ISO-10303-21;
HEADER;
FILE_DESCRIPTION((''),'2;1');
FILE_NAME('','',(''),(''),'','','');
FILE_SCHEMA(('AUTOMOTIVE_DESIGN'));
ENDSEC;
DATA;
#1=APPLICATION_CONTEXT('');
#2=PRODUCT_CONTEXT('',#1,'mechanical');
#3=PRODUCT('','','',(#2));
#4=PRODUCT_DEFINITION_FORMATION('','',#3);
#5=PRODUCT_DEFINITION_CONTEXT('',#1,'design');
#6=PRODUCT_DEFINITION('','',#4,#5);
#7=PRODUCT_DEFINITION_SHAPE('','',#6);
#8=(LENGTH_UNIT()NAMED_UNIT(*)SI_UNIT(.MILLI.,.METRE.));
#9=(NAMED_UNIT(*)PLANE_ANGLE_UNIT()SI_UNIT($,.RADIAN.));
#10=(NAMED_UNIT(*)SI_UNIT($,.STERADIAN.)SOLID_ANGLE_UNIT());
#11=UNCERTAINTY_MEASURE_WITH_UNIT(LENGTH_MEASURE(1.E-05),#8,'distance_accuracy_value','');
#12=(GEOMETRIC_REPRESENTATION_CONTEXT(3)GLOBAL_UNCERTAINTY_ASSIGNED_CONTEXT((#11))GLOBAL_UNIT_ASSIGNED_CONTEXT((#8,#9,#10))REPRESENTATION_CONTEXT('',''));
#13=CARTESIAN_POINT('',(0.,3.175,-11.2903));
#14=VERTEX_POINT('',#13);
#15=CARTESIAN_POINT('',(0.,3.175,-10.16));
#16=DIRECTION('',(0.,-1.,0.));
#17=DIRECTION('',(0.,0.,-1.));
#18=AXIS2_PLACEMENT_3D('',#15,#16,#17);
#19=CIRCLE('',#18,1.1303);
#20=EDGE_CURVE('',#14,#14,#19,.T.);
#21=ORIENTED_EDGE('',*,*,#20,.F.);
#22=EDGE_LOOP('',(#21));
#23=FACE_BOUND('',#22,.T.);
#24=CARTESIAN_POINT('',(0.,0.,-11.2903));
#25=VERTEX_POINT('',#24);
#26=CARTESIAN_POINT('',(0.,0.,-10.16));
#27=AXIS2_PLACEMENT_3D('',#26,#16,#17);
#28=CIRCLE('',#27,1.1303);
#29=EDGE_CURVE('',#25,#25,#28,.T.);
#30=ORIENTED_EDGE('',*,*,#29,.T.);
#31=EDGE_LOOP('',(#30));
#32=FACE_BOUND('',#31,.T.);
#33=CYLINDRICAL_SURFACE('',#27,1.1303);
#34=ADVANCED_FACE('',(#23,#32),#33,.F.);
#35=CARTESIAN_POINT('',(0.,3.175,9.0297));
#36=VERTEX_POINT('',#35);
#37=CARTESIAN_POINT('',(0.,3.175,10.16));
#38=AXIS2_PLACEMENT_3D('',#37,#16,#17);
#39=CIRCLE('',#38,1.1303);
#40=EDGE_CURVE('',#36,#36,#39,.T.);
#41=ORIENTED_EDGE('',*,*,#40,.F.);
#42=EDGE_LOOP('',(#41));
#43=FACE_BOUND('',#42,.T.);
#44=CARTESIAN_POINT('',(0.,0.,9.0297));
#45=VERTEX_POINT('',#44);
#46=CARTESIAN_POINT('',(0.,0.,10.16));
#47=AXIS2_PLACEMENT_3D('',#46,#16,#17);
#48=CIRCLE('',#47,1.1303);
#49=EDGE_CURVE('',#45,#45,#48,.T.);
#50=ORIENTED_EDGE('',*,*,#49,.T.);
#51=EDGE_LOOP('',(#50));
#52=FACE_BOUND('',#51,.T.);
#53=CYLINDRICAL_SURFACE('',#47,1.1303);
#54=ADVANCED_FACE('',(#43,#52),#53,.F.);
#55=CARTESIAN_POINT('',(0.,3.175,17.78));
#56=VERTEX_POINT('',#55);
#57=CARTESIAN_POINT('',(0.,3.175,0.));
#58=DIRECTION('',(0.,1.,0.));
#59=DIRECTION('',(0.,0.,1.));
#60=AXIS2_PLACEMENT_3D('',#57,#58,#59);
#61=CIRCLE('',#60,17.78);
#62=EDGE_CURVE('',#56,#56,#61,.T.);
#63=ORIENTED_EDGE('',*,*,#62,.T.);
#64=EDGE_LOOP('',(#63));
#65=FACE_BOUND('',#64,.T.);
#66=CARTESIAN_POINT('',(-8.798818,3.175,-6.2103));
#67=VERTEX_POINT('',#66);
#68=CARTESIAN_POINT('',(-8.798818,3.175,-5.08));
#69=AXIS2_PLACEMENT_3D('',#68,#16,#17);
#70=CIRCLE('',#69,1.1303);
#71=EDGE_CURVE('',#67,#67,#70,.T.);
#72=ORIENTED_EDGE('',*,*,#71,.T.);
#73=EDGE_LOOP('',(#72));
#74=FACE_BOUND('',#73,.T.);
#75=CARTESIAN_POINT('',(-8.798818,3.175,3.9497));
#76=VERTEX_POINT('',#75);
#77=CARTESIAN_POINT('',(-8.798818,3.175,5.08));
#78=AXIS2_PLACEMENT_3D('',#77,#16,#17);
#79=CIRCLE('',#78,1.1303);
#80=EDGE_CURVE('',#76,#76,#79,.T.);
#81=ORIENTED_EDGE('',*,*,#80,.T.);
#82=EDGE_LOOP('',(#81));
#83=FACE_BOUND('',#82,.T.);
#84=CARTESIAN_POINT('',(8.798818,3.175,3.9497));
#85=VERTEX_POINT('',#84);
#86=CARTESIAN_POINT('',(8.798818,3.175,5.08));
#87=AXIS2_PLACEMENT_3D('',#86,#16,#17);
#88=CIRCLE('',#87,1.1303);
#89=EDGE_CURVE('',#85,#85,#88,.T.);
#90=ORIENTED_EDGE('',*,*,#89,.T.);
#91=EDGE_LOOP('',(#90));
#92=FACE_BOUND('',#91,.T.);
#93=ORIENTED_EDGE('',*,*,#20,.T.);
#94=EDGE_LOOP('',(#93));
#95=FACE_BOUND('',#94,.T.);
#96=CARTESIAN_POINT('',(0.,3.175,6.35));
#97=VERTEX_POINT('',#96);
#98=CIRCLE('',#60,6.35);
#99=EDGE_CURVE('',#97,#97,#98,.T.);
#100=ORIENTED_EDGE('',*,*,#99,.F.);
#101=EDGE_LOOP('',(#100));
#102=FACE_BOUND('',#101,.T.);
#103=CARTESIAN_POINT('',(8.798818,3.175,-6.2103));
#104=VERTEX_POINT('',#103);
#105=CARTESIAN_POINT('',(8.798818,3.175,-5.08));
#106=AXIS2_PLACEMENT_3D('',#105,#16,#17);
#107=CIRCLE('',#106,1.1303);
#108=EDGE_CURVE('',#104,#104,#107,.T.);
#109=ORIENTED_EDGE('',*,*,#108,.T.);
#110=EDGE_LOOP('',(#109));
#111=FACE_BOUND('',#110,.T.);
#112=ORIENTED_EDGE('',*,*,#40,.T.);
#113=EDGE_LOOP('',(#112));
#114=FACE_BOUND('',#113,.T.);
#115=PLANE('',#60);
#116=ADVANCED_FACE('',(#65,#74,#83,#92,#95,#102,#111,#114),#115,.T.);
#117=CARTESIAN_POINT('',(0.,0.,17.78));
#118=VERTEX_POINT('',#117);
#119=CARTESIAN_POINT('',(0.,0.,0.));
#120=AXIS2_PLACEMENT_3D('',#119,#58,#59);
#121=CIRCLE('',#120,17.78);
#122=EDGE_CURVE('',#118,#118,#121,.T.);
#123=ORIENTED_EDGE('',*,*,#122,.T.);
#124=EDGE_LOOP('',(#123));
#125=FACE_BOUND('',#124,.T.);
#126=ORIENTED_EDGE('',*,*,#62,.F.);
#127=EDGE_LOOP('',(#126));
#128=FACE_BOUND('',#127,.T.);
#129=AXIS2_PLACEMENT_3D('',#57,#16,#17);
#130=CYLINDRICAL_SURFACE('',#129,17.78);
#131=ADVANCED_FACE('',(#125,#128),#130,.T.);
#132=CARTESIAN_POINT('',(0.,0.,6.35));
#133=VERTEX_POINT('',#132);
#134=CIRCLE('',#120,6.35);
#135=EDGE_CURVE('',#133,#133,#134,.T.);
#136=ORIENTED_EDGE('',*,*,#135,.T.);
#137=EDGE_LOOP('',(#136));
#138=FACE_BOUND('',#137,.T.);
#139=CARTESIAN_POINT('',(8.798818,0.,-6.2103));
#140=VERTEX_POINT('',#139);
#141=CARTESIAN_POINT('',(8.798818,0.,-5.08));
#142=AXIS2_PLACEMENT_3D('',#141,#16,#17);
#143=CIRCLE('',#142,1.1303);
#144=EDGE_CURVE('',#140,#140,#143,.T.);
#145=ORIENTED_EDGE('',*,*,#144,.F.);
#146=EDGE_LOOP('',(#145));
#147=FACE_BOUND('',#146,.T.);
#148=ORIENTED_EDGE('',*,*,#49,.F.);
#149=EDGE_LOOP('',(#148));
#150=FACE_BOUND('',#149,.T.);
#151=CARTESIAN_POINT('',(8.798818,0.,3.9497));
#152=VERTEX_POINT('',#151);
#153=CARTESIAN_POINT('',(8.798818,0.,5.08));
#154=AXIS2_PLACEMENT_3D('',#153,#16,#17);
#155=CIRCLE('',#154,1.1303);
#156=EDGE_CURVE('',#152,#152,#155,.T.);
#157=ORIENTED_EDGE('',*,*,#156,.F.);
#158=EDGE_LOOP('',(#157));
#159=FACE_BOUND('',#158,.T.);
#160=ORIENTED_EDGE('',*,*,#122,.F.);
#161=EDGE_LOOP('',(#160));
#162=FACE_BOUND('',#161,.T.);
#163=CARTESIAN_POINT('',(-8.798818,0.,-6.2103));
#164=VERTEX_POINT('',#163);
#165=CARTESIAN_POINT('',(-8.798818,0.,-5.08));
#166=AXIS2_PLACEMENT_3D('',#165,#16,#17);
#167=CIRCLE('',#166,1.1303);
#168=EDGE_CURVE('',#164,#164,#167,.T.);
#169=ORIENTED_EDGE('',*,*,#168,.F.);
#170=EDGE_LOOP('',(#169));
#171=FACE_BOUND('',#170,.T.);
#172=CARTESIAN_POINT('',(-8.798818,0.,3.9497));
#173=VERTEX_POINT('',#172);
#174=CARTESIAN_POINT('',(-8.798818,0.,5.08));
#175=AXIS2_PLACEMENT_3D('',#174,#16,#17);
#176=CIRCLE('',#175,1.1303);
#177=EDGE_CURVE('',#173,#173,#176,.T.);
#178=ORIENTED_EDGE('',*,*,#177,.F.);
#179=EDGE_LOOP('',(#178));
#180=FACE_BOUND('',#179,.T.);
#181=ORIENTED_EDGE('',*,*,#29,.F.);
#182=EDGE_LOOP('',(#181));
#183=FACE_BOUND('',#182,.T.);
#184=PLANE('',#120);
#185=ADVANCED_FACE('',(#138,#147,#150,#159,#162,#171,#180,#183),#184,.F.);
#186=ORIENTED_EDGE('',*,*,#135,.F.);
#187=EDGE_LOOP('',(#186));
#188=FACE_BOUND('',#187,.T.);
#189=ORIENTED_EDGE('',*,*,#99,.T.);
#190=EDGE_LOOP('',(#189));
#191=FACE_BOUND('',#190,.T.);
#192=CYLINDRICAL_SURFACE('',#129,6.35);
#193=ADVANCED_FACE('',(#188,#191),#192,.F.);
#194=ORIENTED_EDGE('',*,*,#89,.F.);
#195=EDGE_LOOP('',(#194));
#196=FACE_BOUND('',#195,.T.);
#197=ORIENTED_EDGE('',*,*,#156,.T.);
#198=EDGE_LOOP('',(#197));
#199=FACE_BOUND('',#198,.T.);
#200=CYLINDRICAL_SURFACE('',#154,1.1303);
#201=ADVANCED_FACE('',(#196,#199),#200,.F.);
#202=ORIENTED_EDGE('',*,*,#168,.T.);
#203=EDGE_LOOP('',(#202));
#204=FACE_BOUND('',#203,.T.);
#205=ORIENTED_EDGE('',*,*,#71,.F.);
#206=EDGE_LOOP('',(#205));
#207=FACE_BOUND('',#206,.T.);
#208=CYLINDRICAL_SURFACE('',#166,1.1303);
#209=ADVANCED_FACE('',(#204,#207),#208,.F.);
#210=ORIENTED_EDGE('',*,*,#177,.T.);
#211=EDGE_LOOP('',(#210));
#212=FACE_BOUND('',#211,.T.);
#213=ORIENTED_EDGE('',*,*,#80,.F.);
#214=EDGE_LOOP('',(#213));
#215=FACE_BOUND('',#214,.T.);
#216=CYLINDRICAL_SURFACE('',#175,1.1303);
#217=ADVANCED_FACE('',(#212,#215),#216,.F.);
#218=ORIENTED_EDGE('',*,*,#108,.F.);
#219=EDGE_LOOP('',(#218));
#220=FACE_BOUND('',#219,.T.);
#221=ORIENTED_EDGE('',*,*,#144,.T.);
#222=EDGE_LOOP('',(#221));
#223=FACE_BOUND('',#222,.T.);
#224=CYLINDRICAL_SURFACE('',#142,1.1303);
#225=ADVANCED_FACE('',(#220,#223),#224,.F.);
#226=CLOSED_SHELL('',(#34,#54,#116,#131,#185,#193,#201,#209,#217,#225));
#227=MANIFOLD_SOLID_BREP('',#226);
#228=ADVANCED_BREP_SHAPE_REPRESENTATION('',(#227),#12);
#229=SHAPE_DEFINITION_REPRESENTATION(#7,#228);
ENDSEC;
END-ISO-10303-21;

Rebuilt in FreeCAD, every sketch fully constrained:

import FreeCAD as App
import Part
import Sketcher

V = App.Vector
Q = App.Units.Quantity

doc = App.newDocument("Part")
params = doc.addObject("Spreadsheet::Sheet", "Params")
for row, (alias, value) in enumerate([
    ("sketch1_diameter", "1.4 in"),
    ("sketch1_diameter2", "0.5 in"),
    ("pad1_length", "0.125 in"),
    ("sketch2_diameter", "0.089 in"),
    ("hole_diameter", "0.089 in"),
], start=1):
    params.set(f"A{row}", alias)
    params.set(f"B{row}", "=" + value)
    params.setAlias(f"B{row}", alias)

body = doc.addObject("PartDesign::Body", "Body")

# Sketch on XZ plane
sketch1 = body.newObject("Sketcher::SketchObject", "Sketch")
sketch1.AttachmentSupport = (doc.getObject("XZ_Plane"), [""])
sketch1.MapMode = "FlatFace"
sketch1.addGeometry([
    Part.Circle(V(0, 0, 0), V(0, 0, 1), 18),
    Part.Circle(V(0, 0, 0), V(0, 0, 1), 6),
], False)
sketch1.addConstraint([
    Sketcher.Constraint("Coincident", 0, 3, -1, 1),
    Sketcher.Constraint("Coincident", 1, 3, -1, 1),
    Sketcher.Constraint("Diameter", 0, Q("1.4 in")),
    Sketcher.Constraint("Diameter", 1, Q("0.5 in")),
])
sketch1.setExpression("Constraints[2]", "Params.sketch1_diameter")
sketch1.setExpression("Constraints[3]", "Params.sketch1_diameter2")
pad1 = body.newObject("PartDesign::Pad", "Pad")
pad1.Profile = sketch1
pad1.setExpression("Length", "Params.pad1_length")
pad1.Reversed = True

# Sketch on XZ plane
sketch2 = body.newObject("Sketcher::SketchObject", "Sketch001")
sketch2.AttachmentSupport = (doc.getObject("XZ_Plane"), [""])
sketch2.MapMode = "FlatFace"
sketch2.addGeometry([
    Part.Circle(V(0, 10.2, 0), V(0, 0, 1), 1.1),  # 0
    Part.Circle(V(8.8, 5.1, 0), V(0, 0, 1), 1.1),  # 1
    Part.Circle(V(8.8, -5.1, 0), V(0, 0, 1), 1.1),  # 2
    Part.Circle(V(0, -10.2, 0), V(0, 0, 1), 1.1),  # 3
    Part.Circle(V(-8.8, -5.1, 0), V(0, 0, 1), 1.1),  # 4
    Part.Circle(V(-8.8, 5.1, 0), V(0, 0, 1), 1.1),  # 5
], False)
sketch2.addConstraint([
    Sketcher.Constraint("Equal", 0, 1),
    Sketcher.Constraint("Equal", 1, 2),
    Sketcher.Constraint("Equal", 2, 3),
    Sketcher.Constraint("Equal", 3, 4),
    Sketcher.Constraint("Equal", 4, 5),
    Sketcher.Constraint("Symmetric", 0, 3, 3, 3, -1, 1),
    Sketcher.Constraint("Symmetric", 1, 3, 4, 3, -1, 1),
    Sketcher.Constraint("Symmetric", 2, 3, 5, 3, -1, 1),
    Sketcher.Constraint("Symmetric", 2, 3, 4, 3, -2),
    Sketcher.Constraint("PointOnObject", 0, 3, -2),
    Sketcher.Constraint("Diameter", 0, Q("0.089 in")),
    Sketcher.Constraint("DistanceY", -1, 1, 0, 3, Q("0.4 in")),
    Sketcher.Constraint("DistanceY", -1, 1, 1, 3, Q("0.2 in")),
    Sketcher.Constraint("DistanceX", -1, 1, 1, 3, 8.798818),
])
sketch2.setExpression("Constraints[10]", "Params.sketch2_diameter")
doc.recompute()
hole = body.newObject("PartDesign::Hole", "Hole")
hole.Profile = sketch2
hole.ThreadType = "None"
hole.setExpression("Diameter", "Params.hole_diameter")
hole.DepthType = "ThroughAll"

doc.recompute()
